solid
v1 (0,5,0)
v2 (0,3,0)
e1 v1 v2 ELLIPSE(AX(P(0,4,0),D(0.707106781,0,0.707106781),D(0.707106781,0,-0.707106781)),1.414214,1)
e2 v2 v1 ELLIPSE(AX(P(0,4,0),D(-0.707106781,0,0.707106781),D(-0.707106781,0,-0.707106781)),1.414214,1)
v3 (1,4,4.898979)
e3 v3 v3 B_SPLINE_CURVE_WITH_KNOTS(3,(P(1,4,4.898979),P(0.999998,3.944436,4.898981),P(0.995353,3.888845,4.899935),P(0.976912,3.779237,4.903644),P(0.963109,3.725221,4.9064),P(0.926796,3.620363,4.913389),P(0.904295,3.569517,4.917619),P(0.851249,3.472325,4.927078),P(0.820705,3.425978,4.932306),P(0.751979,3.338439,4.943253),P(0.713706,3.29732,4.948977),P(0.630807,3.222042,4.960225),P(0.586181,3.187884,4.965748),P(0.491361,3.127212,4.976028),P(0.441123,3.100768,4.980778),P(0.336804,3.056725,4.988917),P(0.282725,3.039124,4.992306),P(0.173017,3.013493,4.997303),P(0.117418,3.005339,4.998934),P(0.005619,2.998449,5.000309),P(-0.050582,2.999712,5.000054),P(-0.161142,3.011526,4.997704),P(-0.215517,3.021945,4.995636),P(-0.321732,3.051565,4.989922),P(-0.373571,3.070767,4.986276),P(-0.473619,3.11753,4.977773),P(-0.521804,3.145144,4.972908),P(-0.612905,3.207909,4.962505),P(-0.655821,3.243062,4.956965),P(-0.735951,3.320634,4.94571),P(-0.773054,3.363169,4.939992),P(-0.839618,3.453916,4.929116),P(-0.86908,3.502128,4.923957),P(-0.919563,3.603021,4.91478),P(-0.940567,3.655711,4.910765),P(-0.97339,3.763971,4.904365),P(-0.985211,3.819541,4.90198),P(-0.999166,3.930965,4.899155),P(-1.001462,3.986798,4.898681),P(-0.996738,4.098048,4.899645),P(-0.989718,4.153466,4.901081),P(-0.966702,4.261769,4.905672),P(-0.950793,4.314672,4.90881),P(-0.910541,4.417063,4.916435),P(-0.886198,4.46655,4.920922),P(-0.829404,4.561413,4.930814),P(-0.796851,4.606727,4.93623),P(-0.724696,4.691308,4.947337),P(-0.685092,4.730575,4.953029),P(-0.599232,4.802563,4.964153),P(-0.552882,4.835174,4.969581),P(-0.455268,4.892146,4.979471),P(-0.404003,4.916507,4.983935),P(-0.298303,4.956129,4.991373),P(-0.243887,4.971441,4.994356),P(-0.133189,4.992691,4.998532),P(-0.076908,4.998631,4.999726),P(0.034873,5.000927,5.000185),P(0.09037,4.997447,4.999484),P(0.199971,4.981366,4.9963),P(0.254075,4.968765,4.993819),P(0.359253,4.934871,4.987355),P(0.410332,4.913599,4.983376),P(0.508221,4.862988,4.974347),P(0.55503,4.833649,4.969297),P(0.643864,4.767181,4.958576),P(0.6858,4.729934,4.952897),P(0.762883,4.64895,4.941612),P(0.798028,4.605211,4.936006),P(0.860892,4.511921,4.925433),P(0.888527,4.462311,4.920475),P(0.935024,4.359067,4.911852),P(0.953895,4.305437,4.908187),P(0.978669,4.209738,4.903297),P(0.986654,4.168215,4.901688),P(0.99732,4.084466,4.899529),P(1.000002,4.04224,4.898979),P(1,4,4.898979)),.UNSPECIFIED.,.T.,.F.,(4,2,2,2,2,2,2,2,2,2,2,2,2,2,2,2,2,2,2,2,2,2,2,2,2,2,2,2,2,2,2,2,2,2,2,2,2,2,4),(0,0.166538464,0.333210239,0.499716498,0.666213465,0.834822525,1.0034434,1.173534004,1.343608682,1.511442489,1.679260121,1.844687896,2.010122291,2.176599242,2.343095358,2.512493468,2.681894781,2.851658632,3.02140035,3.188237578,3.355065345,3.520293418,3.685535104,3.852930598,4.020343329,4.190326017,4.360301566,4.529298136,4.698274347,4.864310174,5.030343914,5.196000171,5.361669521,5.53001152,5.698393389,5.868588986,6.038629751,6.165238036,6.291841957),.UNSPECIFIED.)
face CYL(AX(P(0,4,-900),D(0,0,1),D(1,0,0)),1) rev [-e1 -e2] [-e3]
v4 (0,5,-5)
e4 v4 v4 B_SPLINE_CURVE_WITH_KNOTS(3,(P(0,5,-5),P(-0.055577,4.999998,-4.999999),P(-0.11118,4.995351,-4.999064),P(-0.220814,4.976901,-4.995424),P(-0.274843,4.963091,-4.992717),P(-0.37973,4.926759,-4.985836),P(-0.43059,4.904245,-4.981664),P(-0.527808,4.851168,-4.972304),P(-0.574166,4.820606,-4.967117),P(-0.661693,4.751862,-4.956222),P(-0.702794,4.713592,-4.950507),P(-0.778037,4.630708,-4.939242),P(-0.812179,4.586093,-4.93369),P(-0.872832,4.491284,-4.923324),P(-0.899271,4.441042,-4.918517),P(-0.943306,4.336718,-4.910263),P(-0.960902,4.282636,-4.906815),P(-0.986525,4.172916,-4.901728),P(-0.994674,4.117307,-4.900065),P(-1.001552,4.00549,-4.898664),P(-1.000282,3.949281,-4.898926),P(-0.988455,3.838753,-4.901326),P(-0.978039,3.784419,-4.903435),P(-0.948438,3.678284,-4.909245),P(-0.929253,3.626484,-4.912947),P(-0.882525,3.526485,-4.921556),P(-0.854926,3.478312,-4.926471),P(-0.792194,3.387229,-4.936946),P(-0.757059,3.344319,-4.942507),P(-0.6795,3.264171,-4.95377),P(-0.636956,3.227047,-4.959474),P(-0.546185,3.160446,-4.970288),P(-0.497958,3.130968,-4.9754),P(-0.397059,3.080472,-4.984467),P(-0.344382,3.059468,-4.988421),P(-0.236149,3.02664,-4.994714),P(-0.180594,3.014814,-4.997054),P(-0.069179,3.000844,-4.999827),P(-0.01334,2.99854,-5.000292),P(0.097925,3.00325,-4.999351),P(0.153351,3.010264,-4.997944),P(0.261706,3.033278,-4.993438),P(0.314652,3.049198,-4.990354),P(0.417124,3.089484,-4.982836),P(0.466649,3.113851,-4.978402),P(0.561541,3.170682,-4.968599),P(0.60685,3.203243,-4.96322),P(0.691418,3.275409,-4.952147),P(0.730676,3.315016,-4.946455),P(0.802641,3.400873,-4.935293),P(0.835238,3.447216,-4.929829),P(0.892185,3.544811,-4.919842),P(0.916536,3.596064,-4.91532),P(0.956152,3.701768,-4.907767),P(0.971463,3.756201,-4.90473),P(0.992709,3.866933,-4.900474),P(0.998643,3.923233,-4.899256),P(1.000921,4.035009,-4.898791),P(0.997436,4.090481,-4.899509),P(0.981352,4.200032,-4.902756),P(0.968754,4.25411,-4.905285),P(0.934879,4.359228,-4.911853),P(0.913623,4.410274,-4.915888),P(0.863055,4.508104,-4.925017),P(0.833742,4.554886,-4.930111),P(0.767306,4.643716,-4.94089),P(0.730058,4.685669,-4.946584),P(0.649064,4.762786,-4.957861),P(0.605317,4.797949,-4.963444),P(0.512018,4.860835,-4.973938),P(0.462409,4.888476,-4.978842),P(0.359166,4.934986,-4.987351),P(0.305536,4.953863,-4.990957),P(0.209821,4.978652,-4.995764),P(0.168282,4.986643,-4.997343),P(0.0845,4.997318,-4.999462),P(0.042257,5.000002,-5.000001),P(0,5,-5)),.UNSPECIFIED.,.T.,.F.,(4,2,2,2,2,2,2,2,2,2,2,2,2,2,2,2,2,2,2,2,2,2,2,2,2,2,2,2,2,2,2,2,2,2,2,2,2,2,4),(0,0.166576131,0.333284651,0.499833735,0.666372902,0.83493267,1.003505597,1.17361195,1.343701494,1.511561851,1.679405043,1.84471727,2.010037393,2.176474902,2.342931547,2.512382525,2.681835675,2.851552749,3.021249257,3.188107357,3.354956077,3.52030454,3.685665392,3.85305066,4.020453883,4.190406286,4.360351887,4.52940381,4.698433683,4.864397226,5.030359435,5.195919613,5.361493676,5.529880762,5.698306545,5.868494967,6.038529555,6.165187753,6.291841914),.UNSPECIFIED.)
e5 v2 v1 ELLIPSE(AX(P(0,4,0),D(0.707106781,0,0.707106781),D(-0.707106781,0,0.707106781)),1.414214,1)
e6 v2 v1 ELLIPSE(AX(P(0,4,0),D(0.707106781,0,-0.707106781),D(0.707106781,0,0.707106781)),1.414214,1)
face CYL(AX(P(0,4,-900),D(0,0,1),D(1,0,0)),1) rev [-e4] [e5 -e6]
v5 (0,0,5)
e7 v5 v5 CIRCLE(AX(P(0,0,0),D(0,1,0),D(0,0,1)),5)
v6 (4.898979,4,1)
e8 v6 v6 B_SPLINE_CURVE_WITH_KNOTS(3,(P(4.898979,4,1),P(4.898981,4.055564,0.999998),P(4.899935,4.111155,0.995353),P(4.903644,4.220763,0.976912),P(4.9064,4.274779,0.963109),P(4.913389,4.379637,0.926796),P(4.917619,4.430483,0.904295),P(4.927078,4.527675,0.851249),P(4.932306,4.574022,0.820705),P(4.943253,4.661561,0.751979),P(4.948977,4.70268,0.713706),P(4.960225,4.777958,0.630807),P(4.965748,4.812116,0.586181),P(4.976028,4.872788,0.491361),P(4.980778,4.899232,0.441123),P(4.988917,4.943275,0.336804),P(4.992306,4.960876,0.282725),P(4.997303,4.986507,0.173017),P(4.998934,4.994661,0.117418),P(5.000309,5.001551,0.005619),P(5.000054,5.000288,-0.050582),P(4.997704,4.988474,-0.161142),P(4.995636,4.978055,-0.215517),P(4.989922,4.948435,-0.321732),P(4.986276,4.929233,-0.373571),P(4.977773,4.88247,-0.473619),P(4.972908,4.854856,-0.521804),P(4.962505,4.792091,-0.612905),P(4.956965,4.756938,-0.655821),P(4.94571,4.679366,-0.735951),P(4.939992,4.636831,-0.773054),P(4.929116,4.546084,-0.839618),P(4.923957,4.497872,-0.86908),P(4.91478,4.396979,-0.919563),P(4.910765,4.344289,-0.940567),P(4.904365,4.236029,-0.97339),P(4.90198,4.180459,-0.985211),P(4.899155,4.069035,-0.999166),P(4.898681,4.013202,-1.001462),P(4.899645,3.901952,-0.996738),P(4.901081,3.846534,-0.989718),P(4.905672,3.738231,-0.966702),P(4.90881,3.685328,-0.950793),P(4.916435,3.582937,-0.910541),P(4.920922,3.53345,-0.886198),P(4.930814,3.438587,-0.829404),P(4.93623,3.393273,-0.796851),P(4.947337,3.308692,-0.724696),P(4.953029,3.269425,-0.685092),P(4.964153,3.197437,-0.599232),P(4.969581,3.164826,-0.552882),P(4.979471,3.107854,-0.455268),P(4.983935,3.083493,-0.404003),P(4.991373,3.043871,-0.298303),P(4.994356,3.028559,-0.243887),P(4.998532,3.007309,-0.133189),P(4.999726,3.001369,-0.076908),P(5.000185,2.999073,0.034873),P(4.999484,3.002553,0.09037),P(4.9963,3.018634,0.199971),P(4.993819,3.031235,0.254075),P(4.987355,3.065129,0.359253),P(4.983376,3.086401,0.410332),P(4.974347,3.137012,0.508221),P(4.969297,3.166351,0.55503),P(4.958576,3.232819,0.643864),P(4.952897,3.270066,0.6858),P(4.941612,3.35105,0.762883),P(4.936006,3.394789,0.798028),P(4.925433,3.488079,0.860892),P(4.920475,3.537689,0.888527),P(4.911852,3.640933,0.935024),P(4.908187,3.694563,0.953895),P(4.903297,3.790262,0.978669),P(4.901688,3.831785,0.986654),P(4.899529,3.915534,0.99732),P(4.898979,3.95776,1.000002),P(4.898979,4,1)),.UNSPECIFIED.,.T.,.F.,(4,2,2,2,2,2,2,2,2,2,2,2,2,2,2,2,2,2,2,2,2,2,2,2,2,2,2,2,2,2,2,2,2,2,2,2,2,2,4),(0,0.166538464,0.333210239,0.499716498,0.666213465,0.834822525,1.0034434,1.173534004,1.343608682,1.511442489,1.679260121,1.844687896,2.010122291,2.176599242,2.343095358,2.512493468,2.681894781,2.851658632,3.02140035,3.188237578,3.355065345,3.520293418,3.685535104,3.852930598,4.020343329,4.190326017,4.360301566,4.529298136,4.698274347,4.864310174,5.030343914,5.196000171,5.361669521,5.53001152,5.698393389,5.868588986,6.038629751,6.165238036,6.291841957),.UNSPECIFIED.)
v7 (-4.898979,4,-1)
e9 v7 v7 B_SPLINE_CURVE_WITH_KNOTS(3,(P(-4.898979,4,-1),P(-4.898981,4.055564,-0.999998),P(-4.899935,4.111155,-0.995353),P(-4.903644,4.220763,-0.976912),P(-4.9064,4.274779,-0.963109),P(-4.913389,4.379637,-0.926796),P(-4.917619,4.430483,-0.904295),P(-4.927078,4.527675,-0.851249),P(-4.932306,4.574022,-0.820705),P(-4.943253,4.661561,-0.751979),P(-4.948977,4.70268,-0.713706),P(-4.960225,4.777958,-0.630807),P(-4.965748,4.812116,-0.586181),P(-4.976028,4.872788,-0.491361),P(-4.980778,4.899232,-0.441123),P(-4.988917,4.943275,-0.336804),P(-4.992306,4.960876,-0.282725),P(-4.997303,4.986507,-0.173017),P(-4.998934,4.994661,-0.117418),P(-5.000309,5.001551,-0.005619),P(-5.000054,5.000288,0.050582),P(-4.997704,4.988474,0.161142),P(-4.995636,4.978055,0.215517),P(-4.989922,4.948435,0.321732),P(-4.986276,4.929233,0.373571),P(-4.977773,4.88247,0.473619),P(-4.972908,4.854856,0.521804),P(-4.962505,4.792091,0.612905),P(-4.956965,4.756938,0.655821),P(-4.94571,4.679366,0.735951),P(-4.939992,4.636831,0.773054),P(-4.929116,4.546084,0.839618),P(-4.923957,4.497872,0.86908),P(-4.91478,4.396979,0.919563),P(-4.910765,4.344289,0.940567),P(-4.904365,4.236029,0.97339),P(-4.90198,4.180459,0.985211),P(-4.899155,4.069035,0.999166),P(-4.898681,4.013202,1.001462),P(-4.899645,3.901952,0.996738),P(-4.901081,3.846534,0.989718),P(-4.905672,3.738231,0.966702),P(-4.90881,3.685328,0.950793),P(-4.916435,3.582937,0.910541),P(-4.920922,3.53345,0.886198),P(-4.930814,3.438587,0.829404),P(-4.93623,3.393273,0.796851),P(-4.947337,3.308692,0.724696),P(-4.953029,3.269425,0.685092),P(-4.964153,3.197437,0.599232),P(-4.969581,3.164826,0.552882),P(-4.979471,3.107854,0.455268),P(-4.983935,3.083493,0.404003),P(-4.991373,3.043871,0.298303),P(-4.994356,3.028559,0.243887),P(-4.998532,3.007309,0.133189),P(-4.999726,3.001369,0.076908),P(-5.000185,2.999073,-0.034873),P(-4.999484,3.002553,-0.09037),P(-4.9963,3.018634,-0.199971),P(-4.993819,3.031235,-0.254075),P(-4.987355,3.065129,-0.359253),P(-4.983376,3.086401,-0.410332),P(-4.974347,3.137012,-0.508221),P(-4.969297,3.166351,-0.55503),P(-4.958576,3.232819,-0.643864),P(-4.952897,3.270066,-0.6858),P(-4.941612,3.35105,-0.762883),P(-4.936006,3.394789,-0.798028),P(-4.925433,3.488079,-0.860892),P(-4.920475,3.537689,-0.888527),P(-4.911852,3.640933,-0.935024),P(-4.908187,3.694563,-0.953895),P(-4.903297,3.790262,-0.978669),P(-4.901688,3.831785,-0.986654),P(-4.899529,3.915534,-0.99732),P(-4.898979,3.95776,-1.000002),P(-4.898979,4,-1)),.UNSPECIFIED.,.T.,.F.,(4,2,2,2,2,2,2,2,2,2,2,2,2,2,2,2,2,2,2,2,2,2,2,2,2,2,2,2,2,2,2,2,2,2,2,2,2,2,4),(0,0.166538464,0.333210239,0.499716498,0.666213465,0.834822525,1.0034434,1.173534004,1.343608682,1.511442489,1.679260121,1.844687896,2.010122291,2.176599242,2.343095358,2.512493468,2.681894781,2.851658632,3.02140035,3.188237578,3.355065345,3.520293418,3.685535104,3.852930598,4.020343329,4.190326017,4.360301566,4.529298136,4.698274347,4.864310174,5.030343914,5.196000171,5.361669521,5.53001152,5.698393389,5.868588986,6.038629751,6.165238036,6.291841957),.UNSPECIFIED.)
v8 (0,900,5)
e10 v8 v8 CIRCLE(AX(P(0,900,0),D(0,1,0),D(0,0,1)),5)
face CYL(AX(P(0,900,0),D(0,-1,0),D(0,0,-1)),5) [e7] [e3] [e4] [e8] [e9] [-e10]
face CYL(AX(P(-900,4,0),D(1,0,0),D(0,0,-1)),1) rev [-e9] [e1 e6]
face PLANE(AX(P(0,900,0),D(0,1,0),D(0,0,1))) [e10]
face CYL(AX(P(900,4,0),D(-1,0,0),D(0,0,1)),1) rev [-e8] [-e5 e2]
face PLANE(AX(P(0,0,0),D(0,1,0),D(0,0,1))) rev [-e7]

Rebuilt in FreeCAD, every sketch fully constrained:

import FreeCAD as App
import Part
import Sketcher
from FreeCAD import Vector
Q = App.Units.Quantity

doc = App.newDocument("Part")
params = doc.addObject("Spreadsheet::Sheet", "Params")
for row, (alias, value) in enumerate([
    ("sketch1_diameter", "10 mm"),
    ("pad1_length", "900 mm"),
    ("sketch2_diameter", "2 mm"),
    ("pocket1_length", "900 mm"),
], start=1):
    params.set(f"A{row}", alias)
    params.set(f"B{row}", "=" + value)
    params.setAlias(f"B{row}", alias)

body = doc.addObject("PartDesign::Body", "Body")

# Sketch on XZ plane
sketch1 = doc.addObject("Sketcher::SketchObject", "Sketch")
body.addObject(sketch1)
sketch1.AttachmentSupport = (doc.XZ_Plane, [""])
sketch1.MapMode = "FlatFace"
sketch1.addGeometry(Part.Circle(Vector(0, 0, 0), Vector(0, 0, 1), 5), False)
sketch1.addConstraint(Sketcher.Constraint("Coincident", 0, 3, -1, 1))
sketch1.addConstraint(Sketcher.Constraint("Diameter", 0, Q("10 mm")))
sketch1.setExpression("Constraints[1]", "Params.sketch1_diameter")
pad1 = doc.addObject("PartDesign::Pad", "Pad")
body.addObject(pad1)
pad1.Profile = sketch1
pad1.setExpression("Length", "Params.pad1_length")
pad1.Reversed = True

# Sketch on YZ plane
sketch2 = doc.addObject("Sketcher::SketchObject", "Sketch001")
body.addObject(sketch2)
sketch2.AttachmentSupport = (doc.YZ_Plane, [""])
sketch2.MapMode = "FlatFace"
sketch2.addGeometry(Part.Circle(Vector(4, 0, 0), Vector(0, 0, 1), 1), False)
sketch2.addConstraint(Sketcher.Constraint("PointOnObject", 0, 3, -1))
sketch2.addConstraint(Sketcher.Constraint("Diameter", 0, Q("2 mm")))
sketch2.addConstraint(Sketcher.Constraint("DistanceX", -1, 1, 0, 3, Q("4 mm")))
sketch2.setExpression("Constraints[1]", "Params.sketch2_diameter")
pocket1 = doc.addObject("PartDesign::Pocket", "Pocket")
body.addObject(pocket1)
pocket1.Profile = sketch2
pocket1.setExpression("Length", "Params.pocket1_length")
doc.recompute()

polarpattern = doc.addObject("PartDesign::PolarPattern", "PolarPattern")
body.addObject(polarpattern)
polarpattern.Originals = [pocket1]
polarpattern.Axis = (doc.Y_Axis, [""])
polarpattern.Angle = 360
polarpattern.Occurrences = 4
body.Tip = polarpattern

doc.recompute()
